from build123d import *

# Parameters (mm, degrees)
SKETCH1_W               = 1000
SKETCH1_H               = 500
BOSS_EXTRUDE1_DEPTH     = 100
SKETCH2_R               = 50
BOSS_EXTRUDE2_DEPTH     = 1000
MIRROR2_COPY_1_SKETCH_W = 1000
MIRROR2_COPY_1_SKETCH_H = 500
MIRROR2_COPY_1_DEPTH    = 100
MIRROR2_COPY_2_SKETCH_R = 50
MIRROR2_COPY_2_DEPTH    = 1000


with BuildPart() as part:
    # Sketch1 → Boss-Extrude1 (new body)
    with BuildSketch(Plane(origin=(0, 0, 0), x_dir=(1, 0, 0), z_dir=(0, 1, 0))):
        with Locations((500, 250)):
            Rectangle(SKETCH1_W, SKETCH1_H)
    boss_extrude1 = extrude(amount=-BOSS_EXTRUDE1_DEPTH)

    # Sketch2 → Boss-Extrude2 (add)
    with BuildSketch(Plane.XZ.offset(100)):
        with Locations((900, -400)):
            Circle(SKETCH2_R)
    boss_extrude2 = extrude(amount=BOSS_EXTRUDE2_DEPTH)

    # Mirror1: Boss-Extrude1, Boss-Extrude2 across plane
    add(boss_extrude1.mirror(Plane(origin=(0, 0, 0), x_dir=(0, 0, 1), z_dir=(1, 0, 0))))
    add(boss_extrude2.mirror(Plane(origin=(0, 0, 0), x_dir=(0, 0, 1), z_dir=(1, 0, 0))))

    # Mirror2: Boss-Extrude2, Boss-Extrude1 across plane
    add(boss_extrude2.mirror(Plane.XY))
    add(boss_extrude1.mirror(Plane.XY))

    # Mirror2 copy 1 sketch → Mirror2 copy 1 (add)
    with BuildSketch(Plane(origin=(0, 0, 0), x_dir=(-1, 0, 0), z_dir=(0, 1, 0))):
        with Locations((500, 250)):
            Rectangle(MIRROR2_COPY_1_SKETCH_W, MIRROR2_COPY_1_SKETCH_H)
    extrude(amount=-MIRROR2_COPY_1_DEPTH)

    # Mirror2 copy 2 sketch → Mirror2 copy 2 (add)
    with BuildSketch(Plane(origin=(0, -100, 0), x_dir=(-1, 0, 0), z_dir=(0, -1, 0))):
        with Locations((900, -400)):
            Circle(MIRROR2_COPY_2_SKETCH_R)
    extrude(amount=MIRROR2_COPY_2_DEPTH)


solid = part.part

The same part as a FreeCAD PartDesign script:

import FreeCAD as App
import Part
import Sketcher
from FreeCAD import Vector


def add_polygon(sketch, points):
    """Adds a closed chain of lines whose ends are joined by coincident constraints."""
    first, n = sketch.GeometryCount, len(points)
    for a, b in zip(points, points[1:] + points[:1]):
        sketch.addGeometry(Part.LineSegment(App.Vector(*a, 0), App.Vector(*b, 0)), False)
    for i in range(n):
        sketch.addConstraint(Sketcher.Constraint("Coincident", first + i, 2, first + (i + 1) % n, 1))

doc = App.newDocument("Part")
body = doc.addObject("PartDesign::Body", "Body")

sketch1 = body.newObject("Sketcher::SketchObject", "Sketch")
sketch1.AttachmentSupport = (doc.getObject("XZ_Plane"), [""])
sketch1.MapMode = "FlatFace"
add_polygon(sketch1, [(0, -500), (0, 0), (1000, 0), (1000, -500)])
sketch1.addConstraint(Sketcher.Constraint("Vertical", 0))
sketch1.addConstraint(Sketcher.Constraint("Horizontal", 1))
sketch1.addConstraint(Sketcher.Constraint("Vertical", 2))
sketch1.addConstraint(Sketcher.Constraint("Horizontal", 3))
sketch1.addConstraint(Sketcher.Constraint("Coincident", 0, 2, -1, 1))
sketch1.addConstraint(Sketcher.Constraint("DistanceX", 1, 1, 1, 2, 1000.0))
sketch1.addConstraint(Sketcher.Constraint("DistanceY", 0, 1, 0, 2, 500.0))
pad1 = body.newObject("PartDesign::Pad", "Pad")
pad1.Profile = sketch1
pad1.Length = 100

sketch2 = body.newObject("Sketcher::SketchObject", "Sketch001")
sketch2.AttachmentSupport = (doc.getObject("XZ_Plane"), [""])
sketch2.MapMode = "FlatFace"
sketch2.AttachmentOffset = App.Placement(Vector(0, 0, 100), App.Rotation())
sketch2.addGeometry(Part.Circle(Vector(900, -400, 0), Vector(0, 0, 1), 50), False)
sketch2.addConstraint(Sketcher.Constraint("Diameter", 0, 100.0))
sketch2.addConstraint(Sketcher.Constraint("DistanceX", -1, 1, 0, 3, 900.0))
sketch2.addConstraint(Sketcher.Constraint("DistanceY", 0, 3, -1, 1, 400.0))
pad2 = body.newObject("PartDesign::Pad", "Pad001")
pad2.Profile = sketch2
pad2.Length = 1000
doc.recompute()

mirrored = body.newObject("PartDesign::Mirrored", "Mirrored")
mirrored.Originals = [pad1, pad2]
mirrored.MirrorPlane = (doc.getObject("YZ_Plane"), [""])
body.Tip = mirrored
doc.recompute()

mirrored2 = body.newObject("PartDesign::Mirrored", "Mirrored001")
mirrored2.Originals = [pad2, pad1]
mirrored2.MirrorPlane = (doc.getObject("XY_Plane"), [""])
body.Tip = mirrored2

sketch3 = body.newObject("Sketcher::SketchObject", "Sketch002")
sketch3.AttachmentSupport = (doc.getObject("XZ_Plane"), [""])
sketch3.MapMode = "FlatFace"
add_polygon(sketch3, [(0, 500), (0, 0), (-1000, 0), (-1000, 500)])
sketch3.addConstraint(Sketcher.Constraint("Vertical", 0))
sketch3.addConstraint(Sketcher.Constraint("Horizontal", 1))
sketch3.addConstraint(Sketcher.Constraint("Vertical", 2))
sketch3.addConstraint(Sketcher.Constraint("Horizontal", 3))
sketch3.addConstraint(Sketcher.Constraint("Coincident", 0, 2, -1, 1))
sketch3.addConstraint(Sketcher.Constraint("DistanceX", 1, 2, 1, 1, 1000.0))
sketch3.addConstraint(Sketcher.Constraint("DistanceY", 0, 2, 0, 1, 500.0))
pad3 = body.newObject("PartDesign::Pad", "Pad002")
pad3.Profile = sketch3
pad3.Length = 100

sketch4 = body.newObject("Sketcher::SketchObject", "Sketch003")
sketch4.AttachmentSupport = (doc.getObject("XZ_Plane"), [""])
sketch4.MapMode = "FlatFace"
sketch4.AttachmentOffset = App.Placement(Vector(0, 0, 100), App.Rotation())
sketch4.addGeometry(Part.Circle(Vector(-900, 400, 0), Vector(0, 0, 1), 50), False)
sketch4.addConstraint(Sketcher.Constraint("Diameter", 0, 100.0))
sketch4.addConstraint(Sketcher.Constraint("DistanceX", 0, 3, -1, 1, 900.0))
sketch4.addConstraint(Sketcher.Constraint("DistanceY", -1, 1, 0, 3, 400.0))
pad4 = body.newObject("PartDesign::Pad", "Pad003")
pad4.Profile = sketch4
pad4.Length = 1000

doc.recompute()
